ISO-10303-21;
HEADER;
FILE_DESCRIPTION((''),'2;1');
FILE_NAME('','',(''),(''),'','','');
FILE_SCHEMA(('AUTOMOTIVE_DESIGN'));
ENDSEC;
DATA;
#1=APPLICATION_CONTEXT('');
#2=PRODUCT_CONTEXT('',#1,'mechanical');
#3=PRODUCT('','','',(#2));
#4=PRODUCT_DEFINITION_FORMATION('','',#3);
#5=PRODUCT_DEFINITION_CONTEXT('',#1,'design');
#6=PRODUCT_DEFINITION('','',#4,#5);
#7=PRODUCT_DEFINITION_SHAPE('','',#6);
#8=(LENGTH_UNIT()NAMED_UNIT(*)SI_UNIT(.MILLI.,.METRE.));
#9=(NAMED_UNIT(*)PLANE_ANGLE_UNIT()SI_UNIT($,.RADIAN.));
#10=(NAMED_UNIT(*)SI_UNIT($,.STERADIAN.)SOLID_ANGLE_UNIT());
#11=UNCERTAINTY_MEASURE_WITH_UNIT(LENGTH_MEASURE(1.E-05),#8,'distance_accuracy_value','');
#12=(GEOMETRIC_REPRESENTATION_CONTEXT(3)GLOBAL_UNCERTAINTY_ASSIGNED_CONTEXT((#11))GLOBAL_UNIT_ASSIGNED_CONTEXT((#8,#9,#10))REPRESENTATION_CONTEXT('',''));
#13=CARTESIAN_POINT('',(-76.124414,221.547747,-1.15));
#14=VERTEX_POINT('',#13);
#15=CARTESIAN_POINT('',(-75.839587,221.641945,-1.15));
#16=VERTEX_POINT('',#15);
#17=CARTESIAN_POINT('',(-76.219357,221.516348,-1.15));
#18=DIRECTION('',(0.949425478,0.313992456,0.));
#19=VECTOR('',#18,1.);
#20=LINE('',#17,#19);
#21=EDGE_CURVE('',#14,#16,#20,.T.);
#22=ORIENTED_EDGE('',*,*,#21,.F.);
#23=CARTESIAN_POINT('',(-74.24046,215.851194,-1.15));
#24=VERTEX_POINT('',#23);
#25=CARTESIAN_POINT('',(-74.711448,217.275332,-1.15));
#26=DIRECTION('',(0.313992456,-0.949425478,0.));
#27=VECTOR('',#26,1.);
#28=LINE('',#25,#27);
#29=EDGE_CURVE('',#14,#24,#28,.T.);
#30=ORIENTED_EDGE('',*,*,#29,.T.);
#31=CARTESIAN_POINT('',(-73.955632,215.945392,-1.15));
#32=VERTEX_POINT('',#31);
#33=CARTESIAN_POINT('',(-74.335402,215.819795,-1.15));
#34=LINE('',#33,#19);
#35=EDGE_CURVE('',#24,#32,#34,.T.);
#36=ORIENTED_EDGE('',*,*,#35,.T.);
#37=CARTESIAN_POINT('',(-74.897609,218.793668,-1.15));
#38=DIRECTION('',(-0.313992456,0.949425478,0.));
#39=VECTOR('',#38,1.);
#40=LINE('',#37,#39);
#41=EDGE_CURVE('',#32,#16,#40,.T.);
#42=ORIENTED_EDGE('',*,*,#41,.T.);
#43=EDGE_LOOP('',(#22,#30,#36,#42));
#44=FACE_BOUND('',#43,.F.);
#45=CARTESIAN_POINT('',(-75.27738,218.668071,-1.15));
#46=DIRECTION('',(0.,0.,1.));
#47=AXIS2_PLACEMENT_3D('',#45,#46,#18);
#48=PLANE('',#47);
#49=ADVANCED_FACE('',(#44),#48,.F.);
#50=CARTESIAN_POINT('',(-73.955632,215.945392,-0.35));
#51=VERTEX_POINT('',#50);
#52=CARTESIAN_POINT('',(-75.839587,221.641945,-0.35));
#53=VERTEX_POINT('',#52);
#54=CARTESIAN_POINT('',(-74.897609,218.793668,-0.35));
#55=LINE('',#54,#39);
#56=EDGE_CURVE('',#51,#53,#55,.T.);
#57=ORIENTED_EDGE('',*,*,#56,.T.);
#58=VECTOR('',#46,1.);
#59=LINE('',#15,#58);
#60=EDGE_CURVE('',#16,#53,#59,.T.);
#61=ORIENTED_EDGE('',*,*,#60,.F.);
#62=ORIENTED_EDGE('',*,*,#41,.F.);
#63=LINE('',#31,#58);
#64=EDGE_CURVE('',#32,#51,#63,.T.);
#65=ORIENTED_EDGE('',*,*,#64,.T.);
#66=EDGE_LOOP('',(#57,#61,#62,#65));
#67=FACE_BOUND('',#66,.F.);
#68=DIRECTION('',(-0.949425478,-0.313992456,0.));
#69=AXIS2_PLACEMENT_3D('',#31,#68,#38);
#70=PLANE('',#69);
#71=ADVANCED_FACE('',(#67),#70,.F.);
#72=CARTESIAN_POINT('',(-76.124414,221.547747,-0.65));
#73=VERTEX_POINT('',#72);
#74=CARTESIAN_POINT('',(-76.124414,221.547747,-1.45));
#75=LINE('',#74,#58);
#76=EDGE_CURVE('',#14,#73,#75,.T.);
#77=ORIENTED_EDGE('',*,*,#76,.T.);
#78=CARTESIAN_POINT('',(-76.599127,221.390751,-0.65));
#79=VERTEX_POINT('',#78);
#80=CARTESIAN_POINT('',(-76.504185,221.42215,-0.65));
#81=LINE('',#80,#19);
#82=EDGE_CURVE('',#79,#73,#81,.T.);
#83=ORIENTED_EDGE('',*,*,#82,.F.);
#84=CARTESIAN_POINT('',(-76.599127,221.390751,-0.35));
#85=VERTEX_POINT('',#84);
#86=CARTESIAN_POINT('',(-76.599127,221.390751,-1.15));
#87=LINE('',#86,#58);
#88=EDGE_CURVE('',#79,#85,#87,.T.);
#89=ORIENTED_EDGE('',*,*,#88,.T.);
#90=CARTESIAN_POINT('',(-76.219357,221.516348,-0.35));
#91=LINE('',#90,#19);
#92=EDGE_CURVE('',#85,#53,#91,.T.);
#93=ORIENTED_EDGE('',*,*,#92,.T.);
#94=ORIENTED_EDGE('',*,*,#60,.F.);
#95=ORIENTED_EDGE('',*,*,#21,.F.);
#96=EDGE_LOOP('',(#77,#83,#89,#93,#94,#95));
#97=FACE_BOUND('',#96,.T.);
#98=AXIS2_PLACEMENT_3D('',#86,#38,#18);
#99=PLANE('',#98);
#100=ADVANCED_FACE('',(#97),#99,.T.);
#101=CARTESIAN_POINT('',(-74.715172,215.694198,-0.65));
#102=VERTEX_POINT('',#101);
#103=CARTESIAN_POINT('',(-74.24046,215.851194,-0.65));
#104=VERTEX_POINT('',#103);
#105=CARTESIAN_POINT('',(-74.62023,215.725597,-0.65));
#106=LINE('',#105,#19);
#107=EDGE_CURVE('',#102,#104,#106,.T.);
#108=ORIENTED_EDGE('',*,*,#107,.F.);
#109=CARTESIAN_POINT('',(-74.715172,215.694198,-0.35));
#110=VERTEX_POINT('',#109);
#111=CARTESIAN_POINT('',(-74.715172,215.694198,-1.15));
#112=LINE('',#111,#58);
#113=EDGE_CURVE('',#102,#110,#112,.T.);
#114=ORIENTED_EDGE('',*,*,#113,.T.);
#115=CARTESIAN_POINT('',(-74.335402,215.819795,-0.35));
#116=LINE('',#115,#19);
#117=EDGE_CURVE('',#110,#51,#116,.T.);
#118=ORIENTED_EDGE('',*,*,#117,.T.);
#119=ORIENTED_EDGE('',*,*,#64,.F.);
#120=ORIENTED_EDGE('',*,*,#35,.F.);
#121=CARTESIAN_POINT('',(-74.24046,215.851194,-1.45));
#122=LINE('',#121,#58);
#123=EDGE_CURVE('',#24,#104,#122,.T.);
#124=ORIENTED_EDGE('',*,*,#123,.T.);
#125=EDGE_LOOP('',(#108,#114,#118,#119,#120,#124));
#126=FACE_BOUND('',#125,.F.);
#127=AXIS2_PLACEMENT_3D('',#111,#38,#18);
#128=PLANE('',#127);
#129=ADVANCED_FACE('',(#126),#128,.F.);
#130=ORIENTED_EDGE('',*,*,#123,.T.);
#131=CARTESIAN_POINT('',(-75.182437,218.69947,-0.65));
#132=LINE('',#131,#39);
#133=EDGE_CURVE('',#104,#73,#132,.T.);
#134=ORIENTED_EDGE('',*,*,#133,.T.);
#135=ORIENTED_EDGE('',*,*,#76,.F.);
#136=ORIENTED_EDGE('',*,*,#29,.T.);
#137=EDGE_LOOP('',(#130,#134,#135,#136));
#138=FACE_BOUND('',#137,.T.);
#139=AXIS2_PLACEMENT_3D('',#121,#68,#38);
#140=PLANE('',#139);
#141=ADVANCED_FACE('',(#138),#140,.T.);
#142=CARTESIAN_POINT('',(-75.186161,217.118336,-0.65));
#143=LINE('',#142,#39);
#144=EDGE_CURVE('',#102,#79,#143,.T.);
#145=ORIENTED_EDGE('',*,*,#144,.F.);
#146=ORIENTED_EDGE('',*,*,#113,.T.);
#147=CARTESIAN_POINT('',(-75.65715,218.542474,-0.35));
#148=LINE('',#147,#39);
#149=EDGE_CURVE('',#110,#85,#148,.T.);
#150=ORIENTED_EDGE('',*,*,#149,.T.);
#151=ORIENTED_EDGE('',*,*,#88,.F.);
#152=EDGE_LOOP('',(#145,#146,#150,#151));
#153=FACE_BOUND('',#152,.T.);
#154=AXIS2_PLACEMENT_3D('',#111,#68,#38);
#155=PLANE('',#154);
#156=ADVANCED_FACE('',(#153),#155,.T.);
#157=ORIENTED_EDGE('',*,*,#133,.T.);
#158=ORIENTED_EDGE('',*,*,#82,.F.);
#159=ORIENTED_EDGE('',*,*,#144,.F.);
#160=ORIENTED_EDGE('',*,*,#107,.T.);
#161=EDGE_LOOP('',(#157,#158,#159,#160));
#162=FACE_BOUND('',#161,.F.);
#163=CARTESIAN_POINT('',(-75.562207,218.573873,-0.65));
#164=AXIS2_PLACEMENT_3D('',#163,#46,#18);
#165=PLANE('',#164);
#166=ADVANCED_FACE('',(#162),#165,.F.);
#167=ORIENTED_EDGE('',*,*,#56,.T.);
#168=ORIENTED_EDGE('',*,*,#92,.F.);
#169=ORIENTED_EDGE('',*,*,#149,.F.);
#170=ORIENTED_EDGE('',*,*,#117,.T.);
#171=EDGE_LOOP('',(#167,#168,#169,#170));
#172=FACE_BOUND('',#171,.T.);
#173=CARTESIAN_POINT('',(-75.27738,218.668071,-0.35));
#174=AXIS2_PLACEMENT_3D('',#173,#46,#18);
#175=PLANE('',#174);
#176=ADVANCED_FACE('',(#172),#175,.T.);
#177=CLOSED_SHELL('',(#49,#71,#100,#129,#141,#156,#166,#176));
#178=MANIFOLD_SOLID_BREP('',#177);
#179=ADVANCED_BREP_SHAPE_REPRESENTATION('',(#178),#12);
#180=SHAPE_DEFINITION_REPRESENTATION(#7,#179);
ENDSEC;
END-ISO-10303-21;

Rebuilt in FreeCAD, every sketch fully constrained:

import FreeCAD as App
import Part
import Sketcher
from FreeCAD import Vector
Q = App.Units.Quantity

doc = App.newDocument("Part")
body = doc.addObject("PartDesign::Body", "Body")

# Sketch on XY plane
sketch1 = body.newObject("Sketcher::SketchObject", "Sketch")
sketch1.AttachmentSupport = (doc.getObject("XY_Plane"), [""])
sketch1.MapMode = "FlatFace"
sketch1.addGeometry(Part.LineSegment(Vector(0, 6, 0), Vector(0, 0, 0)), False)
sketch1.addGeometry(Part.LineSegment(Vector(0, 0, 0), Vector(0.8, 0, 0)), False)
sketch1.addGeometry(Part.LineSegment(Vector(0.8, 0, 0), Vector(0.8, 6, 0)), False)
sketch1.addGeometry(Part.LineSegment(Vector(0.8, 6, 0), Vector(0, 6, 0)), False)
sketch1.addConstraint(Sketcher.Constraint("Coincident", 0, 2, 1, 1))
sketch1.addConstraint(Sketcher.Constraint("Coincident", 1, 2, 2, 1))
sketch1.addConstraint(Sketcher.Constraint("Coincident", 2, 2, 3, 1))
sketch1.addConstraint(Sketcher.Constraint("Coincident", 3, 2, 0, 1))
sketch1.addConstraint(Sketcher.Constraint("Vertical", 0))
sketch1.addConstraint(Sketcher.Constraint("Horizontal", 1))
sketch1.addConstraint(Sketcher.Constraint("Vertical", 2))
sketch1.addConstraint(Sketcher.Constraint("Horizontal", 3))
sketch1.addConstraint(Sketcher.Constraint("Coincident", 0, 2, -1, 1))
sketch1.addConstraint(Sketcher.Constraint("DistanceY", 0, 2, 0, 1, Q("6 mm")))
sketch1.addConstraint(Sketcher.Constraint("DistanceX", 1, 1, 1, 2, Q("0.8 mm")))
pad1 = body.newObject("PartDesign::Pad", "Pad")
pad1.Profile = sketch1
pad1.Length = 0.8
body2 = doc.addObject("PartDesign::Body", "Body001")

# Sketch on XY plane
sketch2 = body2.newObject("Sketcher::SketchObject", "Sketch001")
sketch2.AttachmentSupport = (doc.getObject("XY_Plane001"), [""])
sketch2.MapMode = "FlatFace"
sketch2.AttachmentOffset = App.Placement(Vector(0, 0, 0.3), App.Rotation())
sketch2.addGeometry(Part.LineSegment(Vector(0.3, 6, 0), Vector(0.3, 0, 0)), False)
sketch2.addGeometry(Part.LineSegment(Vector(0.3, 0, 0), Vector(1.1, 0, 0)), False)
sketch2.addGeometry(Part.LineSegment(Vector(1.1, 0, 0), Vector(1.1, 6, 0)), False)
sketch2.addGeometry(Part.LineSegment(Vector(1.1, 6, 0), Vector(0.3, 6, 0)), False)
sketch2.addConstraint(Sketcher.Constraint("Coincident", 0, 2, 1, 1))
sketch2.addConstraint(Sketcher.Constraint("Coincident", 1, 2, 2, 1))
sketch2.addConstraint(Sketcher.Constraint("Coincident", 2, 2, 3, 1))
sketch2.addConstraint(Sketcher.Constraint("Coincident", 3, 2, 0, 1))
sketch2.addConstraint(Sketcher.Constraint("Vertical", 0))
sketch2.addConstraint(Sketcher.Constraint("Horizontal", 1))
sketch2.addConstraint(Sketcher.Constraint("Vertical", 2))
sketch2.addConstraint(Sketcher.Constraint("Horizontal", 3))
sketch2.addConstraint(Sketcher.Constraint("PointOnObject", 0, 2, -1))
sketch2.addConstraint(Sketcher.Constraint("DistanceY", 0, 2, 0, 1, Q("6 mm")))
sketch2.addConstraint(Sketcher.Constraint("DistanceX", 1, 1, 1, 2, Q("0.8 mm")))
sketch2.addConstraint(Sketcher.Constraint("DistanceX", -1, 1, 0, 2, Q("0.3 mm")))
pad2 = body2.newObject("PartDesign::Pad", "Pad001")
pad2.Profile = sketch2
pad2.Length = 0.8
doc.recompute()

boolean = body2.newObject("PartDesign::Boolean", "Boolean")
boolean.Type = "Cut"
boolean.addObjects([body])
body3 = doc.addObject("PartDesign::Body", "Body002")
doc.recompute()

body2.Placement = App.Placement(Vector(-75, 215.6, -1.45), App.Rotation(Vector(0, 0, 1), 18.3))
boolean2 = body3.newObject("PartDesign::Boolean", "Boolean001")
boolean2.Type = "Fuse"
boolean2.addObjects([body2])

doc.recompute()
